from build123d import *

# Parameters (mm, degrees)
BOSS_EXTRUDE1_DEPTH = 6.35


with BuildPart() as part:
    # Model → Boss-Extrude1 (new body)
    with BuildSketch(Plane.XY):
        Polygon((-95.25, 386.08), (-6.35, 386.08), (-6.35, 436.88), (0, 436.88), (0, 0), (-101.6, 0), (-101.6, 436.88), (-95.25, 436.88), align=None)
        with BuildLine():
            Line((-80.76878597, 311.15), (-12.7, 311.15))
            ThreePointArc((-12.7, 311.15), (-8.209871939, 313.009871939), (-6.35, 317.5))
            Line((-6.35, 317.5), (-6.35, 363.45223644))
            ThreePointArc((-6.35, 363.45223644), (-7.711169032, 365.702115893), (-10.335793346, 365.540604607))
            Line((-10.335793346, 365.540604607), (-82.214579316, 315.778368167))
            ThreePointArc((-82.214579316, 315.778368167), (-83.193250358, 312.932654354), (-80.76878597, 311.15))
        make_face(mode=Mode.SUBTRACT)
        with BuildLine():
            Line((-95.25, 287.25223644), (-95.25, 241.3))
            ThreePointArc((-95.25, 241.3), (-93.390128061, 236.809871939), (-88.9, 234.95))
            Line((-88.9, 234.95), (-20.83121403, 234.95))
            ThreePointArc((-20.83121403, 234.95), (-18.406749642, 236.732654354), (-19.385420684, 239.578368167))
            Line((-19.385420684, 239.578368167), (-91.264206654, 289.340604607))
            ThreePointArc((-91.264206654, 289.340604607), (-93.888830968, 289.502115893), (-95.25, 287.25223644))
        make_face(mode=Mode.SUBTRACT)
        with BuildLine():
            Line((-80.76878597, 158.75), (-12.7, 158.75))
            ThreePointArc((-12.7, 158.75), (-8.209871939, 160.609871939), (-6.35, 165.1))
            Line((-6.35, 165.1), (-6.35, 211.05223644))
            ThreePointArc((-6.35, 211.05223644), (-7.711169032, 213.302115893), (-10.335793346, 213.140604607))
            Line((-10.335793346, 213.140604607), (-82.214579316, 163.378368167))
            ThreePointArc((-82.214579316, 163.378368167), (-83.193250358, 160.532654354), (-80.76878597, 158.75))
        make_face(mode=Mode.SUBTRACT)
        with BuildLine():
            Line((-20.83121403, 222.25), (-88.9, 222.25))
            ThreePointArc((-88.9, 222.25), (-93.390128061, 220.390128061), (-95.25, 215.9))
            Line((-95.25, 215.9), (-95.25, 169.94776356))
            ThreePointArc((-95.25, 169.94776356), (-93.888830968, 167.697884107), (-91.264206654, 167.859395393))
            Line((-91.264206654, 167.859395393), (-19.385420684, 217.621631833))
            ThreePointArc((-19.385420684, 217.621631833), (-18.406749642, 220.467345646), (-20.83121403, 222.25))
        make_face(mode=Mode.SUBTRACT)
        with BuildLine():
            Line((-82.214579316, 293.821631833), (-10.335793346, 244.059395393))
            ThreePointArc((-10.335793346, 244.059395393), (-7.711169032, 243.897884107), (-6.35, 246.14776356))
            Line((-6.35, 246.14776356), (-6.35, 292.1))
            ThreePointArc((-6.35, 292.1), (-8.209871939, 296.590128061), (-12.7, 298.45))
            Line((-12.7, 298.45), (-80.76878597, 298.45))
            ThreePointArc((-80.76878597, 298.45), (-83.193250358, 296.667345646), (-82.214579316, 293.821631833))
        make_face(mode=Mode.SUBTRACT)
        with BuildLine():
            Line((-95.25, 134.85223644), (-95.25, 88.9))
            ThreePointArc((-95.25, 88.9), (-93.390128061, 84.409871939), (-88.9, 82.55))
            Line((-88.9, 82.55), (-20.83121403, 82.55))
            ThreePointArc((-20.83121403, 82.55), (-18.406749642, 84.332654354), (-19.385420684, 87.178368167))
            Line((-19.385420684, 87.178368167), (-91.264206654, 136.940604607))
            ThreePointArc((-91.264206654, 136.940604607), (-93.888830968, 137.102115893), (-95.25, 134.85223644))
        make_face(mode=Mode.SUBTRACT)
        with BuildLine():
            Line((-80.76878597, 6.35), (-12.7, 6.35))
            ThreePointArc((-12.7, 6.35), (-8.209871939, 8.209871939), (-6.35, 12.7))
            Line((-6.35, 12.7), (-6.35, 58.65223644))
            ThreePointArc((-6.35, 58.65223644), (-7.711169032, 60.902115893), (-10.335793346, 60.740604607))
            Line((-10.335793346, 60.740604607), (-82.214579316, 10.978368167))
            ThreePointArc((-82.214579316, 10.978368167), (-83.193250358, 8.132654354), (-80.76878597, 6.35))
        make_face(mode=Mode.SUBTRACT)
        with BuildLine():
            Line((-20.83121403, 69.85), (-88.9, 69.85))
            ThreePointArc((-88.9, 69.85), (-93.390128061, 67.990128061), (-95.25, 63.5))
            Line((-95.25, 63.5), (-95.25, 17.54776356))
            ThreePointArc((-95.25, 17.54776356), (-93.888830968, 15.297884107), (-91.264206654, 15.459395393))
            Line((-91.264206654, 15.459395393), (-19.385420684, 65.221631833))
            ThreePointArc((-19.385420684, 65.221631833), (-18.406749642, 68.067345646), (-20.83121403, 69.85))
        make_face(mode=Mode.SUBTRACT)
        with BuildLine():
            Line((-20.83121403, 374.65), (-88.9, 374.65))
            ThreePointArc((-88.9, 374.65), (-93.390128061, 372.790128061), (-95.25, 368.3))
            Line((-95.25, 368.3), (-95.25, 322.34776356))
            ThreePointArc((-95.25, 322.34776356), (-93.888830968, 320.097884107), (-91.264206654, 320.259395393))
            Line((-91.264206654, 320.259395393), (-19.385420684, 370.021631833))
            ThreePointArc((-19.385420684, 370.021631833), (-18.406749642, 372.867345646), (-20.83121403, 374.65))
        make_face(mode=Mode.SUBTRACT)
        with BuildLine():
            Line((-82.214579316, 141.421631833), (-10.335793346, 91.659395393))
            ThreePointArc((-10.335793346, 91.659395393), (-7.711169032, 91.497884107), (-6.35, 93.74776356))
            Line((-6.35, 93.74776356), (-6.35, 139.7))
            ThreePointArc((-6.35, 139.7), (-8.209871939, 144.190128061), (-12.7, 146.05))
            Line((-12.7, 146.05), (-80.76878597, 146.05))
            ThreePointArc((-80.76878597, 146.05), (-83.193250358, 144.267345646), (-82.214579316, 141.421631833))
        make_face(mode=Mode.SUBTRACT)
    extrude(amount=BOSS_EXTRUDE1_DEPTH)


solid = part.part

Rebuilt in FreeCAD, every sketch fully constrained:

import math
import FreeCAD as App
import Part
import Sketcher

V = App.Vector
Q = App.Units.Quantity

doc = App.newDocument("Part")
body = doc.addObject("PartDesign::Body", "Body")

# Sketch on XY plane
sketch1 = doc.addObject("Sketcher::SketchObject", "Sketch")
body.addObject(sketch1)
sketch1.AttachmentSupport = (doc.XY_Plane, [""])
sketch1.MapMode = "FlatFace"
sketch1.addGeometry(Part.LineSegment(V(-6.35, 386.08, 0), V(-95.25, 386.08, 0)), False)
sketch1.addGeometry(Part.LineSegment(V(-95.25, 386.08, 0), V(-95.25, 436.88, 0)), False)
sketch1.addGeometry(Part.LineSegment(V(-95.25, 436.88, 0), V(-101.6, 436.88, 0)), False)
sketch1.addGeometry(Part.LineSegment(V(-101.6, 436.88, 0), V(-101.6, 0, 0)), False)
sketch1.addGeometry(Part.LineSegment(V(-101.6, 0, 0), V(0, 0, 0)), False)
sketch1.addGeometry(Part.LineSegment(V(0, 0, 0), V(0, 436.88, 0)), False)
sketch1.addGeometry(Part.LineSegment(V(0, 436.88, 0), V(-6.35, 436.88, 0)), False)
sketch1.addGeometry(Part.LineSegment(V(-6.35, 436.88, 0), V(-6.35, 386.08, 0)), False)
sketch1.addGeometry(Part.ArcOfCircle(Part.Circle(V(-80.768786, 8.89, 0), V(0, 0, 1), 2.54), math.radians(124.695154), math.radians(270)), False)
sketch1.addGeometry(Part.LineSegment(V(-82.214579, 10.978368, 0), V(-10.335793, 60.740605, 0)), False)
sketch1.addGeometry(Part.ArcOfCircle(Part.Circle(V(-8.89, 58.652236, 0), V(0, 0, 1), 2.54), math.radians(0), math.radians(124.695154)), False)
sketch1.addGeometry(Part.LineSegment(V(-6.35, 58.652236, 0), V(-6.35, 12.7, 0)), False)
sketch1.addGeometry(Part.ArcOfCircle(Part.Circle(V(-12.7, 12.7, 0), V(0, 0, 1), 6.35), math.radians(-90), math.radians(0)), False)
sketch1.addGeometry(Part.LineSegment(V(-12.7, 6.35, 0), V(-80.768786, 6.35, 0)), False)
sketch1.addGeometry(Part.ArcOfCircle(Part.Circle(V(-80.768786, 143.51, 0), V(0, 0, 1), 2.54), math.radians(90), math.radians(235.304846)), False)
sketch1.addGeometry(Part.LineSegment(V(-80.768786, 146.05, 0), V(-12.7, 146.05, 0)), False)
sketch1.addGeometry(Part.ArcOfCircle(Part.Circle(V(-12.7, 139.7, 0), V(0, 0, 1), 6.35), math.radians(0), math.radians(90)), False)
sketch1.addGeometry(Part.LineSegment(V(-6.35, 139.7, 0), V(-6.35, 93.747764, 0)), False)
sketch1.addGeometry(Part.ArcOfCircle(Part.Circle(V(-8.89, 93.747764, 0), V(0, 0, 1), 2.54), math.radians(-124.695154), math.radians(0)), False)
sketch1.addGeometry(Part.LineSegment(V(-10.335793, 91.659395, 0), V(-82.214579, 141.421632, 0)), False)
sketch1.addGeometry(Part.ArcOfCircle(Part.Circle(V(-80.768786, 161.29, 0), V(0, 0, 1), 2.54), math.radians(124.695154), math.radians(270)), False)
sketch1.addGeometry(Part.LineSegment(V(-82.214579, 163.378368, 0), V(-10.335793, 213.140605, 0)), False)
sketch1.addGeometry(Part.ArcOfCircle(Part.Circle(V(-8.89, 211.052236, 0), V(0, 0, 1), 2.54), math.radians(0), math.radians(124.695154)), False)
sketch1.addGeometry(Part.LineSegment(V(-6.35, 211.052236, 0), V(-6.35, 165.1, 0)), False)
sketch1.addGeometry(Part.ArcOfCircle(Part.Circle(V(-12.7, 165.1, 0), V(0, 0, 1), 6.35), math.radians(-90), math.radians(0)), False)
sketch1.addGeometry(Part.LineSegment(V(-12.7, 158.75, 0), V(-80.768786, 158.75, 0)), False)
sketch1.addGeometry(Part.ArcOfCircle(Part.Circle(V(-20.831214, 67.31, 0), V(0, 0, 1), 2.54), math.radians(-55.304846), math.radians(90)), False)
sketch1.addGeometry(Part.LineSegment(V(-19.385421, 65.221632, 0), V(-91.264207, 15.459395, 0)), False)
sketch1.addGeometry(Part.ArcOfCircle(Part.Circle(V(-92.71, 17.547764, 0), V(0, 0, 1), 2.54), math.radians(180), math.radians(304.695154)), False)
sketch1.addGeometry(Part.LineSegment(V(-95.25, 17.547764, 0), V(-95.25, 63.5, 0)), False)
sketch1.addGeometry(Part.ArcOfCircle(Part.Circle(V(-88.9, 63.5, 0), V(0, 0, 1), 6.35), math.radians(90), math.radians(180)), False)
sketch1.addGeometry(Part.LineSegment(V(-88.9, 69.85, 0), V(-20.831214, 69.85, 0)), False)
sketch1.addGeometry(Part.ArcOfCircle(Part.Circle(V(-92.71, 134.852236, 0), V(0, 0, 1), 2.54), math.radians(55.304846), math.radians(180)), False)
sketch1.addGeometry(Part.LineSegment(V(-91.264207, 136.940605, 0), V(-19.385421, 87.178368, 0)), False)
sketch1.addGeometry(Part.ArcOfCircle(Part.Circle(V(-20.831214, 85.09, 0), V(0, 0, 1), 2.54), math.radians(-90), math.radians(55.304846)), False)
sketch1.addGeometry(Part.LineSegment(V(-20.831214, 82.55, 0), V(-88.9, 82.55, 0)), False)
sketch1.addGeometry(Part.ArcOfCircle(Part.Circle(V(-88.9, 88.9, 0), V(0, 0, 1), 6.35), math.radians(180), math.radians(270)), False)
sketch1.addGeometry(Part.LineSegment(V(-95.25, 88.9, 0), V(-95.25, 134.852236, 0)), False)
sketch1.addGeometry(Part.ArcOfCircle(Part.Circle(V(-80.768786, 295.91, 0), V(0, 0, 1), 2.54), math.radians(90), math.radians(235.304846)), False)
sketch1.addGeometry(Part.LineSegment(V(-80.768786, 298.45, 0), V(-12.7, 298.45, 0)), False)
sketch1.addGeometry(Part.ArcOfCircle(Part.Circle(V(-12.7, 292.1, 0), V(0, 0, 1), 6.35), math.radians(0), math.radians(90)), False)
sketch1.addGeometry(Part.LineSegment(V(-6.35, 292.1, 0), V(-6.35, 246.147764, 0)), False)
sketch1.addGeometry(Part.ArcOfCircle(Part.Circle(V(-8.89, 246.147764, 0), V(0, 0, 1), 2.54), math.radians(-124.695154), math.radians(0)), False)
sketch1.addGeometry(Part.LineSegment(V(-10.335793, 244.059395, 0), V(-82.214579, 293.821632, 0)), False)
sketch1.addGeometry(Part.ArcOfCircle(Part.Circle(V(-80.768786, 313.69, 0), V(0, 0, 1), 2.54), math.radians(124.695154), math.radians(270)), False)
sketch1.addGeometry(Part.LineSegment(V(-82.214579, 315.778368, 0), V(-10.335793, 365.540605, 0)), False)
sketch1.addGeometry(Part.ArcOfCircle(Part.Circle(V(-8.89, 363.452236, 0), V(0, 0, 1), 2.54), math.radians(0), math.radians(124.695154)), False)
sketch1.addGeometry(Part.LineSegment(V(-6.35, 363.452236, 0), V(-6.35, 317.5, 0)), False)
sketch1.addGeometry(Part.ArcOfCircle(Part.Circle(V(-12.7, 317.5, 0), V(0, 0, 1), 6.35), math.radians(-90), math.radians(0)), False)
sketch1.addGeometry(Part.LineSegment(V(-12.7, 311.15, 0), V(-80.768786, 311.15, 0)), False)
sketch1.addGeometry(Part.ArcOfCircle(Part.Circle(V(-20.831214, 219.71, 0), V(0, 0, 1), 2.54), math.radians(-55.304846), math.radians(90)), False)
sketch1.addGeometry(Part.LineSegment(V(-19.385421, 217.621632, 0), V(-91.264207, 167.859395, 0)), False)
sketch1.addGeometry(Part.ArcOfCircle(Part.Circle(V(-92.71, 169.947764, 0), V(0, 0, 1), 2.54), math.radians(180), math.radians(304.695154)), False)
sketch1.addGeometry(Part.LineSegment(V(-95.25, 169.947764, 0), V(-95.25, 215.9, 0)), False)
sketch1.addGeometry(Part.ArcOfCircle(Part.Circle(V(-88.9, 215.9, 0), V(0, 0, 1), 6.35), math.radians(90), math.radians(180)), False)
sketch1.addGeometry(Part.LineSegment(V(-88.9, 222.25, 0), V(-20.831214, 222.25, 0)), False)
sketch1.addGeometry(Part.ArcOfCircle(Part.Circle(V(-92.71, 287.252236, 0), V(0, 0, 1), 2.54), math.radians(55.304846), math.radians(180)), False)
sketch1.addGeometry(Part.LineSegment(V(-91.264207, 289.340605, 0), V(-19.385421, 239.578368, 0)), False)
sketch1.addGeometry(Part.ArcOfCircle(Part.Circle(V(-20.831214, 237.49, 0), V(0, 0, 1), 2.54), math.radians(-90), math.radians(55.304846)), False)
sketch1.addGeometry(Part.LineSegment(V(-20.831214, 234.95, 0), V(-88.9, 234.95, 0)), False)
sketch1.addGeometry(Part.ArcOfCircle(Part.Circle(V(-88.9, 241.3, 0), V(0, 0, 1), 6.35), math.radians(180), math.radians(270)), False)
sketch1.addGeometry(Part.LineSegment(V(-95.25, 241.3, 0), V(-95.25, 287.252236, 0)), False)
sketch1.addGeometry(Part.ArcOfCircle(Part.Circle(V(-20.831214, 372.11, 0), V(0, 0, 1), 2.54), math.radians(-55.304846), math.radians(90)), False)
sketch1.addGeometry(Part.LineSegment(V(-19.385421, 370.021632, 0), V(-91.264207, 320.259395, 0)), False)
sketch1.addGeometry(Part.ArcOfCircle(Part.Circle(V(-92.71, 322.347764, 0), V(0, 0, 1), 2.54), math.radians(180), math.radians(304.695154)), False)
sketch1.addGeometry(Part.LineSegment(V(-95.25, 322.347764, 0), V(-95.25, 368.3, 0)), False)
sketch1.addGeometry(Part.ArcOfCircle(Part.Circle(V(-88.9, 368.3, 0), V(0, 0, 1), 6.35), math.radians(90), math.radians(180)), False)
sketch1.addGeometry(Part.LineSegment(V(-88.9, 374.65, 0), V(-20.831214, 374.65, 0)), False)
sketch1.addConstraint(Sketcher.Constraint("Coincident", 0, 2, 1, 1))
sketch1.addConstraint(Sketcher.Constraint("Coincident", 1, 2, 2, 1))
sketch1.addConstraint(Sketcher.Constraint("Coincident", 2, 2, 3, 1))
sketch1.addConstraint(Sketcher.Constraint("Coincident", 3, 2, 4, 1))
sketch1.addConstraint(Sketcher.Constraint("Coincident", 4, 2, 5, 1))
sketch1.addConstraint(Sketcher.Constraint("Coincident", 5, 2, 6, 1))
sketch1.addConstraint(Sketcher.Constraint("Coincident", 6, 2, 7, 1))
sketch1.addConstraint(Sketcher.Constraint("Coincident", 7, 2, 0, 1))
sketch1.addConstraint(Sketcher.Constraint("Tangent", 8, 1, 9, 1))
sketch1.addConstraint(Sketcher.Constraint("Tangent", 9, 2, 10, 2))
sketch1.addConstraint(Sketcher.Constraint("Tangent", 10, 1, 11, 1))
sketch1.addConstraint(Sketcher.Constraint("Tangent", 11, 2, 12, 2))
sketch1.addConstraint(Sketcher.Constraint("Tangent", 12, 1, 13, 1))
sketch1.addConstraint(Sketcher.Constraint("Tangent", 13, 2, 8, 2))
sketch1.addConstraint(Sketcher.Constraint("Tangent", 14, 1, 15, 1))
sketch1.addConstraint(Sketcher.Constraint("Tangent", 15, 2, 16, 2))
sketch1.addConstraint(Sketcher.Constraint("Tangent", 16, 1, 17, 1))
sketch1.addConstraint(Sketcher.Constraint("Tangent", 17, 2, 18, 2))
sketch1.addConstraint(Sketcher.Constraint("Tangent", 18, 1, 19, 1))
sketch1.addConstraint(Sketcher.Constraint("Tangent", 19, 2, 14, 2))
sketch1.addConstraint(Sketcher.Constraint("Tangent", 20, 1, 21, 1))
sketch1.addConstraint(Sketcher.Constraint("Tangent", 21, 2, 22, 2))
sketch1.addConstraint(Sketcher.Constraint("Tangent", 22, 1, 23, 1))
sketch1.addConstraint(Sketcher.Constraint("Tangent", 23, 2, 24, 2))
sketch1.addConstraint(Sketcher.Constraint("Tangent", 24, 1, 25, 1))
sketch1.addConstraint(Sketcher.Constraint("Tangent", 25, 2, 20, 2))
sketch1.addConstraint(Sketcher.Constraint("Tangent", 26, 1, 27, 1))
sketch1.addConstraint(Sketcher.Constraint("Tangent", 27, 2, 28, 2))
sketch1.addConstraint(Sketcher.Constraint("Tangent", 28, 1, 29, 1))
sketch1.addConstraint(Sketcher.Constraint("Tangent", 29, 2, 30, 2))
sketch1.addConstraint(Sketcher.Constraint("Tangent", 30, 1, 31, 1))
sketch1.addConstraint(Sketcher.Constraint("Tangent", 31, 2, 26, 2))
sketch1.addConstraint(Sketcher.Constraint("Tangent", 32, 1, 33, 1))
sketch1.addConstraint(Sketcher.Constraint("Tangent", 33, 2, 34, 2))
sketch1.addConstraint(Sketcher.Constraint("Tangent", 34, 1, 35, 1))
sketch1.addConstraint(Sketcher.Constraint("Tangent", 35, 2, 36, 2))
sketch1.addConstraint(Sketcher.Constraint("Tangent", 36, 1, 37, 1))
sketch1.addConstraint(Sketcher.Constraint("Tangent", 37, 2, 32, 2))
sketch1.addConstraint(Sketcher.Constraint("Tangent", 38, 1, 39, 1))
sketch1.addConstraint(Sketcher.Constraint("Tangent", 39, 2, 40, 2))
sketch1.addConstraint(Sketcher.Constraint("Tangent", 40, 1, 41, 1))
sketch1.addConstraint(Sketcher.Constraint("Tangent", 41, 2, 42, 2))
sketch1.addConstraint(Sketcher.Constraint("Tangent", 42, 1, 43, 1))
sketch1.addConstraint(Sketcher.Constraint("Tangent", 43, 2, 38, 2))
sketch1.addConstraint(Sketcher.Constraint("Tangent", 44, 1, 45, 1))
sketch1.addConstraint(Sketcher.Constraint("Tangent", 45, 2, 46, 2))
sketch1.addConstraint(Sketcher.Constraint("Tangent", 46, 1, 47, 1))
sketch1.addConstraint(Sketcher.Constraint("Tangent", 47, 2, 48, 2))
sketch1.addConstraint(Sketcher.Constraint("Tangent", 48, 1, 49, 1))
sketch1.addConstraint(Sketcher.Constraint("Tangent", 49, 2, 44, 2))
sketch1.addConstraint(Sketcher.Constraint("Tangent", 50, 1, 51, 1))
sketch1.addConstraint(Sketcher.Constraint("Tangent", 51, 2, 52, 2))
sketch1.addConstraint(Sketcher.Constraint("Tangent", 52, 1, 53, 1))
sketch1.addConstraint(Sketcher.Constraint("Tangent", 53, 2, 54, 2))
sketch1.addConstraint(Sketcher.Constraint("Tangent", 54, 1, 55, 1))
sketch1.addConstraint(Sketcher.Constraint("Tangent", 55, 2, 50, 2))
sketch1.addConstraint(Sketcher.Constraint("Tangent", 56, 1, 57, 1))
sketch1.addConstraint(Sketcher.Constraint("Tangent", 57, 2, 58, 2))
sketch1.addConstraint(Sketcher.Constraint("Tangent", 58, 1, 59, 1))
sketch1.addConstraint(Sketcher.Constraint("Tangent", 59, 2, 60, 2))
sketch1.addConstraint(Sketcher.Constraint("Tangent", 60, 1, 61, 1))
sketch1.addConstraint(Sketcher.Constraint("Tangent", 61, 2, 56, 2))
sketch1.addConstraint(Sketcher.Constraint("Tangent", 62, 1, 63, 1))
sketch1.addConstraint(Sketcher.Constraint("Tangent", 63, 2, 64, 2))
sketch1.addConstraint(Sketcher.Constraint("Tangent", 64, 1, 65, 1))
sketch1.addConstraint(Sketcher.Constraint("Tangent", 65, 2, 66, 2))
sketch1.addConstraint(Sketcher.Constraint("Tangent", 66, 1, 67, 1))
sketch1.addConstraint(Sketcher.Constraint("Tangent", 67, 2, 62, 2))
sketch1.addConstraint(Sketcher.Constraint("Horizontal", 0))
sketch1.addConstraint(Sketcher.Constraint("Vertical", 1))
sketch1.addConstraint(Sketcher.Constraint("Horizontal", 2))
sketch1.addConstraint(Sketcher.Constraint("Vertical", 3))
sketch1.addConstraint(Sketcher.Constraint("Horizontal", 4))
sketch1.addConstraint(Sketcher.Constraint("Vertical", 5))
sketch1.addConstraint(Sketcher.Constraint("Horizontal", 6))
sketch1.addConstraint(Sketcher.Constraint("Vertical", 7))
sketch1.addConstraint(Sketcher.Constraint("Vertical", 11))
sketch1.addConstraint(Sketcher.Constraint("Horizontal", 13))
sketch1.addConstraint(Sketcher.Constraint("Horizontal", 15))
sketch1.addConstraint(Sketcher.Constraint("Vertical", 17))
sketch1.addConstraint(Sketcher.Constraint("Vertical", 23))
sketch1.addConstraint(Sketcher.Constraint("Horizontal", 25))
sketch1.addConstraint(Sketcher.Constraint("Vertical", 29))
sketch1.addConstraint(Sketcher.Constraint("Horizontal", 31))
sketch1.addConstraint(Sketcher.Constraint("Horizontal", 35))
sketch1.addConstraint(Sketcher.Constraint("Vertical", 37))
sketch1.addConstraint(Sketcher.Constraint("Horizontal", 39))
sketch1.addConstraint(Sketcher.Constraint("Vertical", 41))
sketch1.addConstraint(Sketcher.Constraint("Vertical", 47))
sketch1.addConstraint(Sketcher.Constraint("Horizontal", 49))
sketch1.addConstraint(Sketcher.Constraint("Vertical", 53))
sketch1.addConstraint(Sketcher.Constraint("Horizontal", 55))
sketch1.addConstraint(Sketcher.Constraint("Horizontal", 59))
sketch1.addConstraint(Sketcher.Constraint("Vertical", 61))
sketch1.addConstraint(Sketcher.Constraint("Vertical", 65))
sketch1.addConstraint(Sketcher.Constraint("Horizontal", 67))
sketch1.addConstraint(Sketcher.Constraint("Coincident", 4, 2, -1, 1))
sketch1.addConstraint(Sketcher.Constraint("Equal", 8, 10))
sketch1.addConstraint(Sketcher.Constraint("Equal", 10, 14))
sketch1.addConstraint(Sketcher.Constraint("Equal", 12, 16))
sketch1.addConstraint(Sketcher.Constraint("Equal", 14, 18))
sketch1.addConstraint(Sketcher.Constraint("Equal", 18, 20))
sketch1.addConstraint(Sketcher.Constraint("Equal", 20, 22))
sketch1.addConstraint(Sketcher.Constraint("Equal", 16, 24))
sketch1.addConstraint(Sketcher.Constraint("Equal", 22, 26))
sketch1.addConstraint(Sketcher.Constraint("Equal", 26, 28))
sketch1.addConstraint(Sketcher.Constraint("Equal", 24, 30))
sketch1.addConstraint(Sketcher.Constraint("Equal", 28, 32))
sketch1.addConstraint(Sketcher.Constraint("Equal", 32, 34))
sketch1.addConstraint(Sketcher.Constraint("Equal", 30, 36))
sketch1.addConstraint(Sketcher.Constraint("Equal", 34, 38))
sketch1.addConstraint(Sketcher.Constraint("Equal", 36, 40))
sketch1.addConstraint(Sketcher.Constraint("Equal", 38, 42))
sketch1.addConstraint(Sketcher.Constraint("Equal", 42, 44))
sketch1.addConstraint(Sketcher.Constraint("Equal", 44, 46))
sketch1.addConstraint(Sketcher.Constraint("Equal", 40, 48))
sketch1.addConstraint(Sketcher.Constraint("Equal", 46, 50))
sketch1.addConstraint(Sketcher.Constraint("Equal", 50, 52))
sketch1.addConstraint(Sketcher.Constraint("Equal", 48, 54))
sketch1.addConstraint(Sketcher.Constraint("Equal", 52, 56))
sketch1.addConstraint(Sketcher.Constraint("Equal", 56, 58))
sketch1.addConstraint(Sketcher.Constraint("Equal", 54, 60))
sketch1.addConstraint(Sketcher.Constraint("Equal", 58, 62))
sketch1.addConstraint(Sketcher.Constraint("Equal", 62, 64))
sketch1.addConstraint(Sketcher.Constraint("Equal", 60, 66))
sketch1.addConstraint(Sketcher.Constraint("Parallel", 9, 21))
sketch1.addConstraint(Sketcher.Constraint("Parallel", 21, 27))
sketch1.addConstraint(Sketcher.Constraint("Parallel", 19, 33))
sketch1.addConstraint(Sketcher.Constraint("Parallel", 33, 43))
sketch1.addConstraint(Sketcher.Constraint("Parallel", 27, 45))
sketch1.addConstraint(Sketcher.Constraint("Parallel", 45, 51))
sketch1.addConstraint(Sketcher.Constraint("Parallel", 43, 57))
sketch1.addConstraint(Sketcher.Constraint("Parallel", 51, 63))
sketch1.addConstraint(Sketcher.Constraint("Horizontal", 2, 2, 5, 2))
sketch1.addConstraint(Sketcher.Constraint("Vertical", 8, 3, 14, 3))
sketch1.addConstraint(Sketcher.Constraint("Vertical", 12, 3, 16, 3))
sketch1.addConstraint(Sketcher.Constraint("Vertical", 14, 3, 20, 3))
sketch1.addConstraint(Sketcher.Constraint("Vertical", 18, 3, 22, 3))
sketch1.addConstraint(Sketcher.Constraint("Vertical", 28, 3, 32, 3))
sketch1.addConstraint(Sketcher.Constraint("Vertical", 26, 3, 34, 3))
sketch1.addConstraint(Sketcher.Constraint("Vertical", 20, 3, 38, 3))
sketch1.addConstraint(Sketcher.Constraint("Vertical", 24, 3, 40, 3))
sketch1.addConstraint(Sketcher.Constraint("Vertical", 38, 3, 44, 3))
sketch1.addConstraint(Sketcher.Constraint("Vertical", 42, 3, 46, 3))
sketch1.addConstraint(Sketcher.Constraint("Vertical", 34, 3, 50, 3))
sketch1.addConstraint(Sketcher.Constraint("Vertical", 32, 3, 52, 3))
sketch1.addConstraint(Sketcher.Constraint("Vertical", 52, 3, 56, 3))
sketch1.addConstraint(Sketcher.Constraint("Vertical", 50, 3, 58, 3))
sketch1.addConstraint(Sketcher.Constraint("Vertical", 58, 3, 62, 3))
sketch1.addConstraint(Sketcher.Constraint("Vertical", 56, 3, 64, 3))
sketch1.addConstraint(Sketcher.Constraint("Vertical", 7, 2, 10, 1))
sketch1.addConstraint(Sketcher.Constraint("Vertical", 9, 2, 18, 1))
sketch1.addConstraint(Sketcher.Constraint("Vertical", 1, 2, 28, 1))
sketch1.addConstraint(Sketcher.Constraint("Equal", 2, 6))
sketch1.addConstraint(Sketcher.Constraint("Equal", 25, 31))
sketch1.addConstraint(Sketcher.Constraint("Radius", 8, Q("0.1 in")))
sketch1.addConstraint(Sketcher.Constraint("DistanceX", 4, 1, 4, 2, Q("4 in")))
sketch1.addConstraint(Sketcher.Constraint("DistanceY", 1, 1, 1, 2, Q("2 in")))
sketch1.addConstraint(Sketcher.Constraint("Radius", 12, Q("0.25 in")))
sketch1.addConstraint(Sketcher.Constraint("DistanceX", 0, 2, 0, 1, Q("3.5 in")))
sketch1.addConstraint(Sketcher.Constraint("DistanceY", 3, 2, 3, 1, Q("17.2 in")))
sketch1.addConstraint(Sketcher.Constraint("DistanceY", -1, 1, 12, 3, Q("0.5 in")))
sketch1.addConstraint(Sketcher.Constraint("DistanceY", -1, 1, 16, 3, Q("5.5 in")))
sketch1.addConstraint(Sketcher.Constraint("DistanceY", -1, 1, 24, 3, Q("6.5 in")))
sketch1.addConstraint(Sketcher.Constraint("DistanceY", -1, 1, 30, 3, Q("2.5 in")))
sketch1.addConstraint(Sketcher.Constraint("DistanceY", -1, 1, 36, 3, Q("3.5 in")))
sketch1.addConstraint(Sketcher.Constraint("DistanceY", -1, 1, 40, 3, Q("11.5 in")))
sketch1.addConstraint(Sketcher.Constraint("DistanceY", -1, 1, 48, 3, Q("12.5 in")))
sketch1.addConstraint(Sketcher.Constraint("DistanceY", -1, 1, 54, 3, Q("8.5 in")))
sketch1.addConstraint(Sketcher.Constraint("DistanceY", -1, 1, 60, 3, Q("9.5 in")))
sketch1.addConstraint(Sketcher.Constraint("DistanceY", -1, 1, 66, 3, Q("14.5 in")))
sketch1.addConstraint(Sketcher.Constraint("Distance", 9, Q("87.423338 mm")))
sketch1.addConstraint(Sketcher.Constraint("DistanceX", 13, 2, 13, 1, Q("68.068786 mm")))
pad1 = doc.addObject("PartDesign::Pad", "Pad")
body.addObject(pad1)
pad1.Profile = sketch1
pad1.Length = Q("0.25 in")

doc.recompute()
